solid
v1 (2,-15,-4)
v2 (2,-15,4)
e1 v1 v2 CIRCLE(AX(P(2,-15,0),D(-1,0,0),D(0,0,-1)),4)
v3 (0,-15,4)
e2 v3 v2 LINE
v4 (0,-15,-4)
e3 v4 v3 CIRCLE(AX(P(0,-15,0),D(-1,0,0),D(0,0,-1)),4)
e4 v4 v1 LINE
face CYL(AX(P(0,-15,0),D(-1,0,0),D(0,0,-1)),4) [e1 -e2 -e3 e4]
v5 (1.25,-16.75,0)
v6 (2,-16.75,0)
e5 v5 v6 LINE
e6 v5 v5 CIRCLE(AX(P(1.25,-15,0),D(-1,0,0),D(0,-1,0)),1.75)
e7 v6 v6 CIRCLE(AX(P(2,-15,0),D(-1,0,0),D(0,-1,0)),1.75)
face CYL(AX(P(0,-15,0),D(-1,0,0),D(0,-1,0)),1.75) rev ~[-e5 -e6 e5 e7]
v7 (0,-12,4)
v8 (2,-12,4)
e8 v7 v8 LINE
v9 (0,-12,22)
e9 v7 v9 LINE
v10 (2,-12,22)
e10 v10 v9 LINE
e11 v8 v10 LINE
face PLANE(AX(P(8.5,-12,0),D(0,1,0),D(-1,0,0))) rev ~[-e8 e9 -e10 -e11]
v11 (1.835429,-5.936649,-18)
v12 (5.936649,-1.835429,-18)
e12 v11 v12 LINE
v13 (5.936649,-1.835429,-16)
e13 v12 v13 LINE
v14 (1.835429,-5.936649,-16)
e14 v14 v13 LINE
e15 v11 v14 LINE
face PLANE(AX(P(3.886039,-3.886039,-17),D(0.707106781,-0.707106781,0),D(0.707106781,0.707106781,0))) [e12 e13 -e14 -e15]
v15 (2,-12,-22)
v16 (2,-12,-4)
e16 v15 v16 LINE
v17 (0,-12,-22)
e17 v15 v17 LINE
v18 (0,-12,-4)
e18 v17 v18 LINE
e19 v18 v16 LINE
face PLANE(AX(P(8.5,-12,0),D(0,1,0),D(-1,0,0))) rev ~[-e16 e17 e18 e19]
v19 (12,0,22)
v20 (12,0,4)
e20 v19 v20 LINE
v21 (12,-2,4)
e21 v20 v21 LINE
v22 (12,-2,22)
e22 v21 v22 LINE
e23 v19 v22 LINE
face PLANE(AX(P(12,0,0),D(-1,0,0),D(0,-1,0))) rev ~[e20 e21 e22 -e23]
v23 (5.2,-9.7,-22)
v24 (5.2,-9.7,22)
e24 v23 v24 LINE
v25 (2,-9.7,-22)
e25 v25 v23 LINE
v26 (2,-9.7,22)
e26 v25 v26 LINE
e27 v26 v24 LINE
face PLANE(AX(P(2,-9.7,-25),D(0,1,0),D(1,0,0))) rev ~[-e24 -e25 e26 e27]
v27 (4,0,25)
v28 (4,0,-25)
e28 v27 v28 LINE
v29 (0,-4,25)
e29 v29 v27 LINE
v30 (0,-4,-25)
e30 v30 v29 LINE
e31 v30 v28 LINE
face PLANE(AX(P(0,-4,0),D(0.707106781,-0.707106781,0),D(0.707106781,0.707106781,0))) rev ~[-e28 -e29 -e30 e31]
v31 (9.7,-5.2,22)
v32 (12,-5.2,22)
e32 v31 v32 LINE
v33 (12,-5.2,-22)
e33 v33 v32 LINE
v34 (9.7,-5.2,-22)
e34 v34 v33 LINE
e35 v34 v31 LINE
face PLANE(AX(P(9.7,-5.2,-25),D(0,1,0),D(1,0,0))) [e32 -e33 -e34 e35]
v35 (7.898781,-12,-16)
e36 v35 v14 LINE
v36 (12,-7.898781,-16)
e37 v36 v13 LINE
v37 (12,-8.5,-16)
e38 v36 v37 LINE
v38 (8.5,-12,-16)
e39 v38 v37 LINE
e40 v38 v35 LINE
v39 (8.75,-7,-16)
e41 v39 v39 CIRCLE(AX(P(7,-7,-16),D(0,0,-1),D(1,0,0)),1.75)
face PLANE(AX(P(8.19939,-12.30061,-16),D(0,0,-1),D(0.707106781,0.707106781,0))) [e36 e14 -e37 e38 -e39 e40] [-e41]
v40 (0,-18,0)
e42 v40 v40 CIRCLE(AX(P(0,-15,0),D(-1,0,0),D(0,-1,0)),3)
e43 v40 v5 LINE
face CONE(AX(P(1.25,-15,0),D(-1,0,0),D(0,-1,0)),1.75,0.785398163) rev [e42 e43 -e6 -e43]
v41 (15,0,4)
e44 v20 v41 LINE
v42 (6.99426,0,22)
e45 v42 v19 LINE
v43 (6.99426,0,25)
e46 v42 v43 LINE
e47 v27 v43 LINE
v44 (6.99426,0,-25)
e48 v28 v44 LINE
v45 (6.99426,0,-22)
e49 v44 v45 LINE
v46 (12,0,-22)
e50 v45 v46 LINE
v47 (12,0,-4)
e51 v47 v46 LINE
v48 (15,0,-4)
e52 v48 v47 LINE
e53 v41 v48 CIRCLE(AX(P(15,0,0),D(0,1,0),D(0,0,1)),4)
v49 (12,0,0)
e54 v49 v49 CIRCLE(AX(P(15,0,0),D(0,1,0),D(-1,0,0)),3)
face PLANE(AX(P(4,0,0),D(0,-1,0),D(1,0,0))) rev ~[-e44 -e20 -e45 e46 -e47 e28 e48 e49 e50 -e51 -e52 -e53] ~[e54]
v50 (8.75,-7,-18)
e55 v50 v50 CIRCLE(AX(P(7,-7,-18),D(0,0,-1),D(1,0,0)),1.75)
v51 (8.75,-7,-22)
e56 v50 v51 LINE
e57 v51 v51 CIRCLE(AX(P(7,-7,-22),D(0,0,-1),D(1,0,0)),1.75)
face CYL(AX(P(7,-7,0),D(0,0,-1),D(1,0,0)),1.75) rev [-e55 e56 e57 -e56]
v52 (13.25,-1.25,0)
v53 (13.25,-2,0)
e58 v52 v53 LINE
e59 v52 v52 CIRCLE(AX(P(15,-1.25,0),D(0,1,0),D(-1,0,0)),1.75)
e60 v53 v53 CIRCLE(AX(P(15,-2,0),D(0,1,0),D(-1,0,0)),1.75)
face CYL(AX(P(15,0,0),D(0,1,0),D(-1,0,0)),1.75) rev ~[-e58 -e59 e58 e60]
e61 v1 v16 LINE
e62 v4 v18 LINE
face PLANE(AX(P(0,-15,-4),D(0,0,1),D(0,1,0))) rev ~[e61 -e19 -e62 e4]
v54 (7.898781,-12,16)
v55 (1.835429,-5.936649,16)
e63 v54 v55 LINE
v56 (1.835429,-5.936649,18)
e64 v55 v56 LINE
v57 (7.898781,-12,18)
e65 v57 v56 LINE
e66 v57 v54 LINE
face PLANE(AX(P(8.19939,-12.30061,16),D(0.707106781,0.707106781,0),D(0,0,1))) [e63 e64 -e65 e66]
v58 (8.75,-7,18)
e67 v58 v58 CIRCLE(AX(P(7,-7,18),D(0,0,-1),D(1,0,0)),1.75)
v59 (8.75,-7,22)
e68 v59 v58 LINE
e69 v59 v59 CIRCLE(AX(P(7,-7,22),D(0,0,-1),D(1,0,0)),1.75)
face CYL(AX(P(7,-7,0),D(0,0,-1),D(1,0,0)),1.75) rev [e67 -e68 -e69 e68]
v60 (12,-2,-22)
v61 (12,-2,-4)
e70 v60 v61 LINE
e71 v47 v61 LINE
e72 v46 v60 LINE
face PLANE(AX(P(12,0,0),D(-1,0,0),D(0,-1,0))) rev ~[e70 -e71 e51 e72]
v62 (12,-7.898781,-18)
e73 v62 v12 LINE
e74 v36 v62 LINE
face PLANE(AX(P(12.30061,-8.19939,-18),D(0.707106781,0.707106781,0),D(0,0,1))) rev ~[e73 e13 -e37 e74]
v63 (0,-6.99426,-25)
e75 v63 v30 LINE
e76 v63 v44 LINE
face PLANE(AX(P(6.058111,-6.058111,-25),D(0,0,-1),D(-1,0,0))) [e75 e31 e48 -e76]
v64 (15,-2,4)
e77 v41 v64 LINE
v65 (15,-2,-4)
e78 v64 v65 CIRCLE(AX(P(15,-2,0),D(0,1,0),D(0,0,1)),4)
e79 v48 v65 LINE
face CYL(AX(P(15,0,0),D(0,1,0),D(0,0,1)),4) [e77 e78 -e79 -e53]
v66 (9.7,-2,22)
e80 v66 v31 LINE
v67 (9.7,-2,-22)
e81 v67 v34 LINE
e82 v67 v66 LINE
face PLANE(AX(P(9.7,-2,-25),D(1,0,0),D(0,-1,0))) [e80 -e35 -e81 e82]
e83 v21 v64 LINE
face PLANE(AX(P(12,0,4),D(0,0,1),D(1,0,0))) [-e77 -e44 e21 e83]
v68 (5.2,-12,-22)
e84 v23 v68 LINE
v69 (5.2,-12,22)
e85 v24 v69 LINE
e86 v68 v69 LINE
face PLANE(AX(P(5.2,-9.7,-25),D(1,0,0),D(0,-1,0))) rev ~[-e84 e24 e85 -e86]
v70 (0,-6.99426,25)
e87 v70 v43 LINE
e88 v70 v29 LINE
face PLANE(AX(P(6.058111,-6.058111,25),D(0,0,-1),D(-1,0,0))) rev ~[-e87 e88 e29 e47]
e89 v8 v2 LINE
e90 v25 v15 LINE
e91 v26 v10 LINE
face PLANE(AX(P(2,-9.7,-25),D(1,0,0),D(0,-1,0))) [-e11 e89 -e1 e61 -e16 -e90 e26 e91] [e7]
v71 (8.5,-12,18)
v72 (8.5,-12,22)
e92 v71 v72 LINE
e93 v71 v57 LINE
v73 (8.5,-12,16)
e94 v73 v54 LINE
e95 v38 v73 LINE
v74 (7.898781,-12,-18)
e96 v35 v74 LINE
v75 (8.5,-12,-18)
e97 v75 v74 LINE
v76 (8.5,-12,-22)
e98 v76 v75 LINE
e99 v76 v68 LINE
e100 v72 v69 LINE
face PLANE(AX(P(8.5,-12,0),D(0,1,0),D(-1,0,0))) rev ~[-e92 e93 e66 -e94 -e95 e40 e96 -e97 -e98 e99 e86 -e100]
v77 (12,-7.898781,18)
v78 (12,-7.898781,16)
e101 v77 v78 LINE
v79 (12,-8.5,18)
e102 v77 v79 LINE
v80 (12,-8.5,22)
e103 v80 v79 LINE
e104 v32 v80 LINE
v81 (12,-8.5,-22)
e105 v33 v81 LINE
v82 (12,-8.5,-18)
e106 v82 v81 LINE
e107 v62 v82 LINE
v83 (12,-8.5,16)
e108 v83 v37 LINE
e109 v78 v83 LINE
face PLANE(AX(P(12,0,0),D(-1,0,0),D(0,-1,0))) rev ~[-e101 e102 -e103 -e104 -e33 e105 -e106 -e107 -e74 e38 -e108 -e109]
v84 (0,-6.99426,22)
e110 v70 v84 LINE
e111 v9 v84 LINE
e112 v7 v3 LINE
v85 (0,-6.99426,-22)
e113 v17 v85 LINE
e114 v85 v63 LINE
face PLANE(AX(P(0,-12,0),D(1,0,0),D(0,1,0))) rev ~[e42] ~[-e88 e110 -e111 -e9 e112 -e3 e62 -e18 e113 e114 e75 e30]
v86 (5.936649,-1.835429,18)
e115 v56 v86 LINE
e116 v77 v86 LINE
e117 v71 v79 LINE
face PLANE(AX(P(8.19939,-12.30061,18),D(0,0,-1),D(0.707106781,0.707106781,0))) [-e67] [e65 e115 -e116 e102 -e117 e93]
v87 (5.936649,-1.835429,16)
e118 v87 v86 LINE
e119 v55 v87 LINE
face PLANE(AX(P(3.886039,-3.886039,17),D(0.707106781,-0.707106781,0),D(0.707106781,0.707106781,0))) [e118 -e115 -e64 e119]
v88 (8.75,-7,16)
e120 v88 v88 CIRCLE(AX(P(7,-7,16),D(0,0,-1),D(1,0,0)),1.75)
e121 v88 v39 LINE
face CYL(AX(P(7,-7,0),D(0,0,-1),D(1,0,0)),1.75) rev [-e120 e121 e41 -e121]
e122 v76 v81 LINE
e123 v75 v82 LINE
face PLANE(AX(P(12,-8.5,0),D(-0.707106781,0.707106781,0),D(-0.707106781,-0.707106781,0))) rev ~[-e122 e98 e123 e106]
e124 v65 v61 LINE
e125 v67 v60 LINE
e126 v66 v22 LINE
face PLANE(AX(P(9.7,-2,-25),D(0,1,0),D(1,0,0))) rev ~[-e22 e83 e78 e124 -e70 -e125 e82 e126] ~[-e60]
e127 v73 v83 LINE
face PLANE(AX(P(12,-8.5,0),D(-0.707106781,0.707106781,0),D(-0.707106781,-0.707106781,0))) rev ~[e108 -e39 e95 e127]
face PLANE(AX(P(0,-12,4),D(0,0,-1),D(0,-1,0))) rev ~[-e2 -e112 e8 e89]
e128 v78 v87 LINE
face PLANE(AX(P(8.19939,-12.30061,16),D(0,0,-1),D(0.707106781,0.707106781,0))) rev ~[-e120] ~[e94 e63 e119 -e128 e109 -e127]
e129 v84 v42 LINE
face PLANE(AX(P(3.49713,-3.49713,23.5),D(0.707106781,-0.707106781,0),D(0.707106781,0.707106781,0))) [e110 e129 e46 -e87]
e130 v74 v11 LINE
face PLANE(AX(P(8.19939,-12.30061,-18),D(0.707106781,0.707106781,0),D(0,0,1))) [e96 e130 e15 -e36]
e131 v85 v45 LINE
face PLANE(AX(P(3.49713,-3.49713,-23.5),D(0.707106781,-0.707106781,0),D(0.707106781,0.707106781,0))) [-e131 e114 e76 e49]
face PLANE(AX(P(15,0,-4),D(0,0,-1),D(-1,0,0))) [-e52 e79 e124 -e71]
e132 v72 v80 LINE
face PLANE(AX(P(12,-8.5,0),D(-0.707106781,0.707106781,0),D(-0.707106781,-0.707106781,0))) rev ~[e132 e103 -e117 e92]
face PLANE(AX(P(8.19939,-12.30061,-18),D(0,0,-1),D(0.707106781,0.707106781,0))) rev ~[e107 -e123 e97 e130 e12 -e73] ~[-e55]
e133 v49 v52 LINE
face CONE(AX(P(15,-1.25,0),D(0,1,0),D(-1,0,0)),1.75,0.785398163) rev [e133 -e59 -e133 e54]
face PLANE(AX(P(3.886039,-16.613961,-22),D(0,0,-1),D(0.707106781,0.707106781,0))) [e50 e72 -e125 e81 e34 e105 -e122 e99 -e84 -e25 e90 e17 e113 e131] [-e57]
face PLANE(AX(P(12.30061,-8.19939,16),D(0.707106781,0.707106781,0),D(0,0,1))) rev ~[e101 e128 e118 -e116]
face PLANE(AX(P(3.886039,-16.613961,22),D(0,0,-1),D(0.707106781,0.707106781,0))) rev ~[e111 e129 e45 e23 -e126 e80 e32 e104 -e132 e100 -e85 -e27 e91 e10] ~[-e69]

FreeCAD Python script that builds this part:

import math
import FreeCAD as App
import Part
import Sketcher
from FreeCAD import Vector
Q = App.Units.Quantity


def edges_at(feature, points):
    """Names of the edges that pass closest to the given points."""
    edges = feature.Shape.Edges
    near = lambda p: min(range(len(edges)), key=lambda i: edges[i].distToShape(Part.Vertex(*p))[0])
    return sorted({f"Edge{near(p) + 1}" for p in points})

doc = App.newDocument("Part")
body = doc.addObject("PartDesign::Body", "Body")

# Sketch on XY plane
sketch1 = body.newObject("Sketcher::SketchObject", "Sketch")
sketch1.AttachmentSupport = (doc.getObject("XY_Plane"), [""])
sketch1.MapMode = "FlatFace"
sketch1.addGeometry([
    Part.LineSegment(Vector(4, 0, 0), Vector(0, -4, 0)),  # 0
    Part.LineSegment(Vector(0, -4, 0), Vector(0, -12, 0)),  # 1
    Part.LineSegment(Vector(0, -12, 0), Vector(8.5, -12, 0)),  # 2
    Part.LineSegment(Vector(8.5, -12, 0), Vector(12, -8.5, 0)),  # 3
    Part.LineSegment(Vector(12, -8.5, 0), Vector(12, 0, 0)),  # 4
    Part.LineSegment(Vector(12, 0, 0), Vector(4, 0, 0)),  # 5
    Part.Circle(Vector(7, -7, 0), Vector(0, 0, 1), 1.75),  # 6
], False)
sketch1.addConstraint([
    Sketcher.Constraint("Coincident", 0, 2, 1, 1),
    Sketcher.Constraint("Coincident", 1, 2, 2, 1),
    Sketcher.Constraint("Coincident", 2, 2, 3, 1),
    Sketcher.Constraint("Coincident", 3, 2, 4, 1),
    Sketcher.Constraint("Coincident", 4, 2, 5, 1),
    Sketcher.Constraint("Coincident", 5, 2, 0, 1),
    Sketcher.Constraint("Vertical", 1),
    Sketcher.Constraint("Horizontal", 2),
    Sketcher.Constraint("Vertical", 4),
    Sketcher.Constraint("Horizontal", 5),
    Sketcher.Constraint("PointOnObject", 0, 2, -2),
    Sketcher.Constraint("PointOnObject", 4, 2, -1),
    Sketcher.Constraint("Parallel", 0, 3),
    Sketcher.Constraint("Equal", 5, 1),
    Sketcher.Constraint("Equal", 2, 4),
    Sketcher.Constraint("Diameter", 6, Q("3.5 mm")),
    Sketcher.Constraint("DistanceX", 5, 2, 5, 1, Q("8 mm")),
    Sketcher.Constraint("DistanceX", 2, 1, 2, 2, Q("8.5 mm")),
    Sketcher.Constraint("DistanceX", -1, 1, 6, 3, Q("7 mm")),
    Sketcher.Constraint("DistanceY", 6, 3, -1, 1, Q("7 mm")),
    Sketcher.Constraint("DistanceY", 0, 2, -1, 1, Q("4 mm")),
])
pad1 = body.newObject("PartDesign::Pad", "Pad")
pad1.Profile = sketch1
pad1.Length = 50
pad1.Midplane = True

# Sketch on an angled plane
sketch2 = body.newObject("Sketcher::SketchObject", "Sketch001")
sketch2.Placement = App.Placement(Vector(10.25, -10.25, 0), App.Rotation(Vector(0.707106781, 0.707106781, 0), Vector(0, 0, 0.999999999), Vector(0.707106781, -0.707106781, 0), "ZXY"))
sketch2.addGeometry([
    Part.LineSegment(Vector(-9, 25, 0), Vector(-9, 22, 0)),  # 0
    Part.LineSegment(Vector(-9, 22, 0), Vector(9, 22, 0)),  # 1
    Part.LineSegment(Vector(9, 22, 0), Vector(9, 25, 0)),  # 2
    Part.LineSegment(Vector(9, 25, 0), Vector(-9, 25, 0)),  # 3
    Part.LineSegment(Vector(-9, -22, 0), Vector(-9, -25, 0)),  # 4
    Part.LineSegment(Vector(-9, -25, 0), Vector(9, -25, 0)),  # 5
    Part.LineSegment(Vector(9, -25, 0), Vector(9, -22, 0)),  # 6
    Part.LineSegment(Vector(9, -22, 0), Vector(-9, -22, 0)),  # 7
], False)
sketch2.addConstraint([
    Sketcher.Constraint("Coincident", 0, 2, 1, 1),
    Sketcher.Constraint("Coincident", 1, 2, 2, 1),
    Sketcher.Constraint("Coincident", 2, 2, 3, 1),
    Sketcher.Constraint("Coincident", 3, 2, 0, 1),
    Sketcher.Constraint("Coincident", 4, 2, 5, 1),
    Sketcher.Constraint("Coincident", 5, 2, 6, 1),
    Sketcher.Constraint("Coincident", 6, 2, 7, 1),
    Sketcher.Constraint("Coincident", 7, 2, 4, 1),
    Sketcher.Constraint("Vertical", 0),
    Sketcher.Constraint("Horizontal", 1),
    Sketcher.Constraint("Vertical", 2),
    Sketcher.Constraint("Horizontal", 3),
    Sketcher.Constraint("Vertical", 4),
    Sketcher.Constraint("Horizontal", 5),
    Sketcher.Constraint("Vertical", 6),
    Sketcher.Constraint("Horizontal", 7),
    Sketcher.Constraint("Symmetric", 2, 2, 4, 2, -1, 1),
    Sketcher.Constraint("Symmetric", 0, 2, 6, 2, -1, 1),
    Sketcher.Constraint("Vertical", 3, 2, 4, 2),
    Sketcher.Constraint("DistanceX", 1, 1, 1, 2, Q("18 mm")),
    Sketcher.Constraint("DistanceY", 0, 2, 0, 1, Q("3 mm")),
    Sketcher.Constraint("DistanceY", -1, 1, 0, 2, Q("22 mm")),
])
pocket1 = body.newObject("PartDesign::Pocket", "Pocket")
pocket1.Profile = sketch2
pocket1.Length = 9.55

# Sketch on an angled plane
sketch3 = body.newObject("Sketcher::SketchObject", "Sketch002")
sketch3.Placement = App.Placement(Vector(10.25, -10.25, 0), App.Rotation(Vector(0.707106781, 0.707106781, 0), Vector(0, 0, 0.999999999), Vector(0.707106781, -0.707106781, 0), "ZXY"))
sketch3.addGeometry([
    Part.LineSegment(Vector(-2.9, 18, 0), Vector(-2.9, 16, 0)),  # 0
    Part.LineSegment(Vector(-2.9, 16, 0), Vector(2.9, 16, 0)),  # 1
    Part.LineSegment(Vector(2.9, 16, 0), Vector(2.9, 18, 0)),  # 2
    Part.LineSegment(Vector(2.9, 18, 0), Vector(-2.9, 18, 0)),  # 3
    Part.LineSegment(Vector(-2.9, -16, 0), Vector(-2.9, -18, 0)),  # 4
    Part.LineSegment(Vector(-2.9, -18, 0), Vector(2.9, -18, 0)),  # 5
    Part.LineSegment(Vector(2.9, -18, 0), Vector(2.9, -16, 0)),  # 6
    Part.LineSegment(Vector(2.9, -16, 0), Vector(-2.9, -16, 0)),  # 7
], False)
sketch3.addConstraint([
    Sketcher.Constraint("Coincident", 0, 2, 1, 1),
    Sketcher.Constraint("Coincident", 1, 2, 2, 1),
    Sketcher.Constraint("Coincident", 2, 2, 3, 1),
    Sketcher.Constraint("Coincident", 3, 2, 0, 1),
    Sketcher.Constraint("Coincident", 4, 2, 5, 1),
    Sketcher.Constraint("Coincident", 5, 2, 6, 1),
    Sketcher.Constraint("Coincident", 6, 2, 7, 1),
    Sketcher.Constraint("Coincident", 7, 2, 4, 1),
    Sketcher.Constraint("Vertical", 0),
    Sketcher.Constraint("Horizontal", 1),
    Sketcher.Constraint("Vertical", 2),
    Sketcher.Constraint("Horizontal", 3),
    Sketcher.Constraint("Vertical", 4),
    Sketcher.Constraint("Horizontal", 5),
    Sketcher.Constraint("Vertical", 6),
    Sketcher.Constraint("Horizontal", 7),
    Sketcher.Constraint("Symmetric", 2, 2, 4, 2, -1, 1),
    Sketcher.Constraint("Symmetric", 0, 2, 6, 2, -1, 1),
    Sketcher.Constraint("Vertical", 3, 2, 4, 2),
    Sketcher.Constraint("DistanceY", 0, 2, 0, 1, Q("2 mm")),
    Sketcher.Constraint("DistanceX", 1, 1, 1, 2, Q("5.8 mm")),
    Sketcher.Constraint("DistanceY", -1, 1, 0, 2, Q("16 mm")),
])
pocket2 = body.newObject("PartDesign::Pocket", "Pocket001")
pocket2.Profile = sketch3
pocket2.Length = 9

# Sketch on XY plane
sketch4 = body.newObject("Sketcher::SketchObject", "Sketch003")
sketch4.AttachmentSupport = (doc.getObject("XY_Plane"), [""])
sketch4.MapMode = "FlatFace"
sketch4.AttachmentOffset = App.Placement(Vector(0, 0, -25), App.Rotation())
sketch4.addGeometry([
    Part.LineSegment(Vector(2, -12, 0), Vector(2, -9.7, 0)),  # 0
    Part.LineSegment(Vector(2, -9.7, 0), Vector(5.2, -9.7, 0)),  # 1
    Part.LineSegment(Vector(5.2, -9.7, 0), Vector(5.2, -12, 0)),  # 2
    Part.LineSegment(Vector(5.2, -12, 0), Vector(2, -12, 0)),  # 3
    Part.LineSegment(Vector(9.7, -5.2, 0), Vector(9.7, -2, 0)),  # 4
    Part.LineSegment(Vector(9.7, -2, 0), Vector(12, -2, 0)),  # 5
    Part.LineSegment(Vector(12, -2, 0), Vector(12, -5.2, 0)),  # 6
    Part.LineSegment(Vector(12, -5.2, 0), Vector(9.7, -5.2, 0)),  # 7
], False)
sketch4.addConstraint([
    Sketcher.Constraint("Coincident", 0, 2, 1, 1),
    Sketcher.Constraint("Coincident", 1, 2, 2, 1),
    Sketcher.Constraint("Coincident", 2, 2, 3, 1),
    Sketcher.Constraint("Coincident", 3, 2, 0, 1),
    Sketcher.Constraint("Coincident", 4, 2, 5, 1),
    Sketcher.Constraint("Coincident", 5, 2, 6, 1),
    Sketcher.Constraint("Coincident", 6, 2, 7, 1),
    Sketcher.Constraint("Coincident", 7, 2, 4, 1),
    Sketcher.Constraint("Vertical", 0),
    Sketcher.Constraint("Horizontal", 1),
    Sketcher.Constraint("Vertical", 2),
    Sketcher.Constraint("Horizontal", 3),
    Sketcher.Constraint("Vertical", 4),
    Sketcher.Constraint("Horizontal", 5),
    Sketcher.Constraint("Vertical", 6),
    Sketcher.Constraint("Horizontal", 7),
    Sketcher.Constraint("Equal", 7, 0),
    Sketcher.Constraint("Equal", 3, 4),
    Sketcher.Constraint("DistanceX", 1, 1, 1, 2, Q("3.2 mm")),
    Sketcher.Constraint("DistanceX", 5, 1, 5, 2, Q("2.3 mm")),
    Sketcher.Constraint("DistanceX", -1, 1, 0, 2, Q("2 mm")),
    Sketcher.Constraint("DistanceY", 2, 2, -1, 1, Q("12 mm")),
    Sketcher.Constraint("DistanceY", 4, 2, -1, 1, Q("2 mm")),
    Sketcher.Constraint("DistanceX", -1, 1, 5, 2, Q("12 mm")),
])
pocket3 = body.newObject("PartDesign::Pocket", "Pocket002")
pocket3.Profile = sketch4
pocket3.Type = "ThroughAll"
pocket3.Reversed = True

# Sketch on YZ plane
sketch5 = body.newObject("Sketcher::SketchObject", "Sketch004")
sketch5.AttachmentSupport = (doc.getObject("YZ_Plane"), [""])
sketch5.MapMode = "FlatFace"
sketch5.addGeometry([
    Part.LineSegment(Vector(-15, 4, 0), Vector(-12, 4, 0)),  # 0
    Part.LineSegment(Vector(-12, 4, 0), Vector(-12, -4, 0)),  # 1
    Part.LineSegment(Vector(-12, -4, 0), Vector(-15, -4, 0)),  # 2
    Part.ArcOfCircle(Part.Circle(Vector(-15, 0, 0), Vector(0, 0, 1), 4), math.radians(90), math.radians(270)),  # 3
    Part.Circle(Vector(-15, 0, 0), Vector(0, 0, 1), 1.75),  # 4
], False)
sketch5.addConstraint([
    Sketcher.Constraint("Coincident", 0, 2, 1, 1),
    Sketcher.Constraint("Coincident", 1, 2, 2, 1),
    Sketcher.Constraint("Tangent", 2, 2, 3, 2),
    Sketcher.Constraint("Tangent", 3, 1, 0, 1),
    Sketcher.Constraint("Horizontal", 0),
    Sketcher.Constraint("Vertical", 1),
    Sketcher.Constraint("Horizontal", 2),
    Sketcher.Constraint("Coincident", 4, 3, 3, 3),
    Sketcher.Constraint("PointOnObject", 3, 3, -1),
    Sketcher.Constraint("Radius", 3, Q("4 mm")),
    Sketcher.Constraint("Diameter", 4, Q("3.5 mm")),
    Sketcher.Constraint("DistanceX", 0, 1, 0, 2, Q("3 mm")),
    Sketcher.Constraint("DistanceX", 3, 3, -1, 1, Q("15 mm")),
])
pad2 = body.newObject("PartDesign::Pad", "Pad001")
pad2.Profile = sketch5
pad2.Length = 2

# Sketch on XZ plane
sketch6 = body.newObject("Sketcher::SketchObject", "Sketch005")
sketch6.AttachmentSupport = (doc.getObject("XZ_Plane"), [""])
sketch6.MapMode = "FlatFace"
sketch6.addGeometry([
    Part.LineSegment(Vector(12, 4, 0), Vector(15, 4, 0)),  # 0
    Part.ArcOfCircle(Part.Circle(Vector(15, 0, 0), Vector(0, 0, 1), 4), math.radians(-90), math.radians(90)),  # 1
    Part.LineSegment(Vector(15, -4, 0), Vector(12, -4, 0)),  # 2
    Part.LineSegment(Vector(12, -4, 0), Vector(12, 4, 0)),  # 3
    Part.Circle(Vector(15, 0, 0), Vector(0, 0, 1), 1.75),  # 4
], False)
sketch6.addConstraint([
    Sketcher.Constraint("Tangent", 0, 2, 1, 2),
    Sketcher.Constraint("Tangent", 1, 1, 2, 1),
    Sketcher.Constraint("Coincident", 2, 2, 3, 1),
    Sketcher.Constraint("Coincident", 3, 2, 0, 1),
    Sketcher.Constraint("Horizontal", 0),
    Sketcher.Constraint("Horizontal", 2),
    Sketcher.Constraint("Vertical", 3),
    Sketcher.Constraint("Coincident", 4, 3, 1, 3),
    Sketcher.Constraint("PointOnObject", 1, 3, -1),
    Sketcher.Constraint("Radius", 1, Q("4 mm")),
    Sketcher.Constraint("Diameter", 4, Q("3.5 mm")),
    Sketcher.Constraint("DistanceX", 0, 1, 0, 2, Q("3 mm")),
    Sketcher.Constraint("DistanceX", -1, 1, 1, 3, Q("15 mm")),
])
pad3 = body.newObject("PartDesign::Pad", "Pad002")
pad3.Profile = sketch6
pad3.Length = 2
doc.recompute()

chamfer = body.newObject("PartDesign::Chamfer", "Chamfer")
chamfer.Base = (pad3, edges_at(pad3, [(16.75, 0, 0), (0, -13.25, 0)]))
chamfer.Size = 1.25

doc.recompute()
